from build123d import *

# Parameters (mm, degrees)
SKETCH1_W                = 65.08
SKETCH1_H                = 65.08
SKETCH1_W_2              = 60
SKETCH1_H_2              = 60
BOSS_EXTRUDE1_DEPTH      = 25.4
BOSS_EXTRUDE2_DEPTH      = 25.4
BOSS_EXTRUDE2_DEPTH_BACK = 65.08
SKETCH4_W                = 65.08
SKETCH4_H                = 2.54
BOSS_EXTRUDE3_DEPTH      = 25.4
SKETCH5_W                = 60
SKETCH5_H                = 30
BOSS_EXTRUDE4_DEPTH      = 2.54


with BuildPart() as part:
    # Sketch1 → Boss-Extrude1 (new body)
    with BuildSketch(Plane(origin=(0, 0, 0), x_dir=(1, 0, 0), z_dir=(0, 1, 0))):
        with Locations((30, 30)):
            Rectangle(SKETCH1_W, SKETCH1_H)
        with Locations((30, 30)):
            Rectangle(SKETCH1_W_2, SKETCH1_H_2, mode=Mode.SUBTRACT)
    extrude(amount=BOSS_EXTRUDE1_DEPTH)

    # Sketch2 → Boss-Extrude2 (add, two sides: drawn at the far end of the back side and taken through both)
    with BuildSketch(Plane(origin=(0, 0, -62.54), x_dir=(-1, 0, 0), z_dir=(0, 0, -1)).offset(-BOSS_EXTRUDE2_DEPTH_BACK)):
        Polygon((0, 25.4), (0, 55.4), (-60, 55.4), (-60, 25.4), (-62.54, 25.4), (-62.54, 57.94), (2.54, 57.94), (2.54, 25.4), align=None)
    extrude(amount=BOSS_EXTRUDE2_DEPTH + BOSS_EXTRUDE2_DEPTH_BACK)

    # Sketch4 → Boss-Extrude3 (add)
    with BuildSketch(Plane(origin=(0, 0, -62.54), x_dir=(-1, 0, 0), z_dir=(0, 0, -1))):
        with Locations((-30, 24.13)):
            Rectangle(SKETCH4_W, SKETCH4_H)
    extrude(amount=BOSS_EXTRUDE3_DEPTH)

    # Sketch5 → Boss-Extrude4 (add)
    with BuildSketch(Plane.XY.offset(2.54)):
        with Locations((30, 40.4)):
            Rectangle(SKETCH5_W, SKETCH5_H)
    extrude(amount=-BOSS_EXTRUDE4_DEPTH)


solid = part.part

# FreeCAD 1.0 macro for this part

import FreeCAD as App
import Part
import Sketcher

V = App.Vector
Q = App.Units.Quantity


def add_polygon(sketch, points):
    """Adds a closed chain of lines whose ends are joined by coincident constraints."""
    first, n = sketch.GeometryCount, len(points)
    for a, b in zip(points, points[1:] + points[:1]):
        sketch.addGeometry(Part.LineSegment(App.Vector(*a, 0), App.Vector(*b, 0)), False)
    for i in range(n):
        sketch.addConstraint(Sketcher.Constraint("Coincident", first + i, 2, first + (i + 1) % n, 1))

doc = App.newDocument("Part")
body = doc.addObject("PartDesign::Body", "Body")

sketch1 = body.newObject("Sketcher::SketchObject", "Sketch")
sketch1.AttachmentSupport = (doc.getObject("XZ_Plane"), [""])
sketch1.MapMode = "FlatFace"
add_polygon(sketch1, [(-3, -63), (-3, 3), (63, 3), (63, -63)])
add_polygon(sketch1, [(60, 0), (0, 0), (0, -60), (60, -60)])
sketch1.addConstraint([
    Sketcher.Constraint("Vertical", 0),
    Sketcher.Constraint("Horizontal", 1),
    Sketcher.Constraint("Vertical", 2),
    Sketcher.Constraint("Horizontal", 3),
    Sketcher.Constraint("Horizontal", 4),
    Sketcher.Constraint("Vertical", 5),
    Sketcher.Constraint("Horizontal", 6),
    Sketcher.Constraint("Vertical", 7),
    Sketcher.Constraint("Coincident", 4, 2, -1, 1),
    Sketcher.Constraint("Equal", 3, 0),
    Sketcher.Constraint("Equal", 6, 5),
    Sketcher.Constraint("DistanceX", 4, 2, 4, 1, Q("60 mm")),
    Sketcher.Constraint("DistanceX", 1, 1, 1, 2, Q("65.08 mm")),
    Sketcher.Constraint("DistanceX", 0, 2, -1, 1, Q("2.54 mm")),
    Sketcher.Constraint("DistanceY", -1, 1, 0, 2, Q("2.54 mm")),
])
pad1 = body.newObject("PartDesign::Pad", "Pad")
pad1.Profile = sketch1
pad1.Length = 25.4
pad1.Reversed = True

sketch2 = body.newObject("Sketcher::SketchObject", "Sketch001")
sketch2.AttachmentSupport = (doc.getObject("XY_Plane"), [""])
sketch2.MapMode = "FlatFace"
sketch2.AttachmentOffset = App.Placement(V(0, 0, -62.54), App.Rotation())
add_polygon(sketch2, [(0, 55.4), (0, 25.4), (-2.5, 25.4), (-2.5, 57.9), (62.5, 57.9), (62.5, 25.4), (60, 25.4), (60, 55.4)])
sketch2.addConstraint([
    Sketcher.Constraint("Vertical", 0),
    Sketcher.Constraint("Horizontal", 1),
    Sketcher.Constraint("Vertical", 2),
    Sketcher.Constraint("Horizontal", 3),
    Sketcher.Constraint("Vertical", 4),
    Sketcher.Constraint("Horizontal", 5),
    Sketcher.Constraint("Vertical", 6),
    Sketcher.Constraint("Horizontal", 7),
    Sketcher.Constraint("PointOnObject", 0, 2, -2),
    Sketcher.Constraint("Horizontal", 1, 2, 4, 2),
    Sketcher.Constraint("Equal", 1, 5),
    Sketcher.Constraint("DistanceX", 7, 2, 7, 1, Q("60 mm")),
    Sketcher.Constraint("DistanceY", 0, 2, 0, 1, Q("30 mm")),
    Sketcher.Constraint("DistanceX", 1, 2, 1, 1, Q("2.54 mm")),
    Sketcher.Constraint("DistanceY", 2, 1, 2, 2, Q("32.54 mm")),
    Sketcher.Constraint("DistanceY", -1, 1, 0, 2, Q("25.4 mm")),
])
pad2 = body.newObject("PartDesign::Pad", "Pad001")
pad2.Profile = sketch2
pad2.Type = "TwoLengths"
pad2.Length = 25.4
pad2.Length2 = 65.08
pad2.Reversed = True

sketch3 = body.newObject("Sketcher::SketchObject", "Sketch002")
sketch3.AttachmentSupport = (doc.getObject("XY_Plane"), [""])
sketch3.MapMode = "FlatFace"
sketch3.AttachmentOffset = App.Placement(V(0, 0, -62.54), App.Rotation())
add_polygon(sketch3, [(62.5, 25.4), (62.5, 22.9), (-2.5, 22.9), (-2.5, 25.4)])
sketch3.addConstraint([
    Sketcher.Constraint("Vertical", 0),
    Sketcher.Constraint("Horizontal", 1),
    Sketcher.Constraint("Vertical", 2),
    Sketcher.Constraint("Horizontal", 3),
    Sketcher.Constraint("DistanceX", 1, 2, 1, 1, Q("65.08 mm")),
    Sketcher.Constraint("DistanceY", 0, 2, 0, 1, Q("2.54 mm")),
    Sketcher.Constraint("DistanceY", -1, 1, 2, 2, Q("25.4 mm")),
    Sketcher.Constraint("DistanceX", -1, 1, 0, 2, Q("62.54 mm")),
])
pad3 = body.newObject("PartDesign::Pad", "Pad002")
pad3.Profile = sketch3
pad3.Length = 25.4
pad3.Reversed = True

sketch4 = body.newObject("Sketcher::SketchObject", "Sketch003")
sketch4.AttachmentSupport = (doc.getObject("XY_Plane"), [""])
sketch4.MapMode = "FlatFace"
sketch4.AttachmentOffset = App.Placement(V(0, 0, 2.54), App.Rotation())
add_polygon(sketch4, [(0, 55), (0, 25), (60, 25), (60, 55)])
sketch4.addConstraint([
    Sketcher.Constraint("Vertical", 0),
    Sketcher.Constraint("Horizontal", 1),
    Sketcher.Constraint("Vertical", 2),
    Sketcher.Constraint("Horizontal", 3),
    Sketcher.Constraint("PointOnObject", 0, 2, -2),
    Sketcher.Constraint("DistanceX", 1, 1, 1, 2, Q("60 mm")),
    Sketcher.Constraint("DistanceY", 0, 2, 0, 1, Q("30 mm")),
    Sketcher.Constraint("DistanceY", -1, 1, 0, 2, Q("25.4 mm")),
])
pad4 = body.newObject("PartDesign::Pad", "Pad003")
pad4.Profile = sketch4
pad4.Length = 2.54
pad4.Reversed = True

doc.recompute()
